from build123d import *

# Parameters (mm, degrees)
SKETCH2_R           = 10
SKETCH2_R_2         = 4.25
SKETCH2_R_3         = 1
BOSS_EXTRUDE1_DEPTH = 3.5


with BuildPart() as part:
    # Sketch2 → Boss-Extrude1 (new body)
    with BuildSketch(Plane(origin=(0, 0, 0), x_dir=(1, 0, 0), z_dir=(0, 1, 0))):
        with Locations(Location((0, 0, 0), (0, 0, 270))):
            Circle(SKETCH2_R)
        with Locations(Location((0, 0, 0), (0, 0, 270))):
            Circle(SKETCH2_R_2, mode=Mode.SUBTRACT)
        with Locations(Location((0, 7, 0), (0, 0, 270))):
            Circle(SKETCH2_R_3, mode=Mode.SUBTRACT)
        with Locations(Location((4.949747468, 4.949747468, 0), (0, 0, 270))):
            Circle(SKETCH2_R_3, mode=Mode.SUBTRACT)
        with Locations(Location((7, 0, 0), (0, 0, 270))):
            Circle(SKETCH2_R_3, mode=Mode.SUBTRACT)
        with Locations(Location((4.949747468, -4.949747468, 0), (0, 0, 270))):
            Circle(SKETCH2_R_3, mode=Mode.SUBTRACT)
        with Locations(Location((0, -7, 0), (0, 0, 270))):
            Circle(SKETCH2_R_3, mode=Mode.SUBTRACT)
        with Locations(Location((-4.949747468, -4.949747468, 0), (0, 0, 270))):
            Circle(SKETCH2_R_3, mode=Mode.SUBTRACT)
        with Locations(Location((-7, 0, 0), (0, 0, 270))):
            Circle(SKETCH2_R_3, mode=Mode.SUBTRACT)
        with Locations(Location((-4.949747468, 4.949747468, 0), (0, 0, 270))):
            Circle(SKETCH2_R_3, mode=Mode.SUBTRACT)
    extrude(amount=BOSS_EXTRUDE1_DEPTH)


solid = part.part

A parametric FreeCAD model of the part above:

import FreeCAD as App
import Part
import Sketcher
from FreeCAD import Vector

doc = App.newDocument("Part")
params = doc.addObject("Spreadsheet::Sheet", "Params")
for row, (alias, value) in enumerate([
    ("sketch1_diameter", "20 mm"),
    ("sketch1_diameter2", "2 mm"),
    ("sketch1_diameter3", "8.5 mm"),
    ("pad1_length", "3.5 mm"),
], start=1):
    params.set(f"A{row}", alias)
    params.set(f"B{row}", "=" + value)
    params.setAlias(f"B{row}", alias)

body = doc.addObject("PartDesign::Body", "Body")

sketch1 = body.newObject("Sketcher::SketchObject", "Sketch")
sketch1.AttachmentSupport = (doc.getObject("XZ_Plane"), [""])
sketch1.MapMode = "FlatFace"
sketch1.addGeometry(Part.Circle(Vector(0, 0, 0), Vector(0, 0, 1), 10), False)
sketch1.addGeometry(Part.Circle(Vector(-4.949747, -4.949747, 0), Vector(0, 0, 1), 1), False)
sketch1.addGeometry(Part.Circle(Vector(0, -7, 0), Vector(0, 0, 1), 1), False)
sketch1.addGeometry(Part.Circle(Vector(-7, 0, 0), Vector(0, 0, 1), 1), False)
sketch1.addGeometry(Part.Circle(Vector(-4.949747, 4.949747, 0), Vector(0, 0, 1), 1), False)
sketch1.addGeometry(Part.Circle(Vector(0, 0, 0), Vector(0, 0, 1), 4.25), False)
sketch1.addGeometry(Part.Circle(Vector(4.949747, -4.949747, 0), Vector(0, 0, 1), 1), False)
sketch1.addGeometry(Part.Circle(Vector(7, 0, 0), Vector(0, 0, 1), 1), False)
sketch1.addGeometry(Part.Circle(Vector(0, 7, 0), Vector(0, 0, 1), 1), False)
sketch1.addGeometry(Part.Circle(Vector(4.949747, 4.949747, 0), Vector(0, 0, 1), 1), False)
sketch1.addConstraint(Sketcher.Constraint("Coincident", 0, 3, -1, 1))
sketch1.addConstraint(Sketcher.Constraint("Coincident", 5, 3, -1, 1))
sketch1.addConstraint(Sketcher.Constraint("Equal", 1, 2))
sketch1.addConstraint(Sketcher.Constraint("Equal", 2, 3))
sketch1.addConstraint(Sketcher.Constraint("Equal", 3, 4))
sketch1.addConstraint(Sketcher.Constraint("Equal", 4, 6))
sketch1.addConstraint(Sketcher.Constraint("Equal", 6, 7))
sketch1.addConstraint(Sketcher.Constraint("Equal", 7, 8))
sketch1.addConstraint(Sketcher.Constraint("Equal", 8, 9))
sketch1.addConstraint(Sketcher.Constraint("Symmetric", 4, 3, 6, 3, -1, 1))
sketch1.addConstraint(Sketcher.Constraint("Symmetric", 3, 3, 7, 3, -1, 1))
sketch1.addConstraint(Sketcher.Constraint("Symmetric", 2, 3, 8, 3, -1, 1))
sketch1.addConstraint(Sketcher.Constraint("Symmetric", 1, 3, 9, 3, -1, 1))
sketch1.addConstraint(Sketcher.Constraint("Symmetric", 1, 3, 6, 3, -2))
sketch1.addConstraint(Sketcher.Constraint("PointOnObject", 2, 3, -2))
sketch1.addConstraint(Sketcher.Constraint("PointOnObject", 3, 3, -1))
sketch1.addConstraint(Sketcher.Constraint("Diameter", 0, 20.0))
sketch1.addConstraint(Sketcher.Constraint("Diameter", 1, 2.0))
sketch1.addConstraint(Sketcher.Constraint("Diameter", 5, 8.5))
sketch1.addConstraint(Sketcher.Constraint("DistanceY", 2, 3, -1, 1, 7.0))
sketch1.addConstraint(Sketcher.Constraint("DistanceX", 3, 3, -1, 1, 7.0))
sketch1.addConstraint(Sketcher.Constraint("DistanceX", 1, 3, -1, 1, 4.949747))
sketch1.addConstraint(Sketcher.Constraint("DistanceY", 1, 3, -1, 1, 4.949747))
sketch1.setExpression("Constraints[16]", "Params.sketch1_diameter")
sketch1.setExpression("Constraints[17]", "Params.sketch1_diameter2")
sketch1.setExpression("Constraints[18]", "Params.sketch1_diameter3")
pad1 = body.newObject("PartDesign::Pad", "Pad")
pad1.Profile = sketch1
pad1.setExpression("Length", "Params.pad1_length")
pad1.Reversed = True

doc.recompute()
